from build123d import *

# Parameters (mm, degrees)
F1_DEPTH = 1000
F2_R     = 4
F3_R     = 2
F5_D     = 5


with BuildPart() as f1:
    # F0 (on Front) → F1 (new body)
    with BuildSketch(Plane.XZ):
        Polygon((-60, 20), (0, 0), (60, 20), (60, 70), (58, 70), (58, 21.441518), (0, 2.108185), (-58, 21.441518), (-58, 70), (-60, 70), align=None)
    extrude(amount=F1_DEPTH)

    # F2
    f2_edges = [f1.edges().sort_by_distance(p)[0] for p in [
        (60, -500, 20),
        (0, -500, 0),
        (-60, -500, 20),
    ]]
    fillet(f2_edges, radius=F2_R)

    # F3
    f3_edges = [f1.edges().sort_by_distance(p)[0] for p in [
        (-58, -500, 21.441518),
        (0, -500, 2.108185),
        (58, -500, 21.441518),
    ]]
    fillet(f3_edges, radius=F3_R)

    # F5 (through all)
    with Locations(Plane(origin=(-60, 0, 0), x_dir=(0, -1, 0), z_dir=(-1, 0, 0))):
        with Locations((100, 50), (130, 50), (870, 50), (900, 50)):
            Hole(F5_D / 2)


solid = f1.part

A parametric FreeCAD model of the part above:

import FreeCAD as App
import Part
import Sketcher
from FreeCAD import Vector


def edges_at(feature, points):
    """Names of the edges that pass closest to the given points."""
    edges = feature.Shape.Edges
    near = lambda p: min(range(len(edges)), key=lambda i: edges[i].distToShape(Part.Vertex(*p))[0])
    return sorted({f"Edge{near(p) + 1}" for p in points})


def add_polygon(sketch, points):
    """Adds a closed chain of lines whose ends are joined by coincident constraints."""
    first, n = sketch.GeometryCount, len(points)
    for a, b in zip(points, points[1:] + points[:1]):
        sketch.addGeometry(Part.LineSegment(App.Vector(*a, 0), App.Vector(*b, 0)), False)
    for i in range(n):
        sketch.addConstraint(Sketcher.Constraint("Coincident", first + i, 2, first + (i + 1) % n, 1))

doc = App.newDocument("Part")
body = doc.addObject("PartDesign::Body", "Body")

# Sketch on XZ plane
sketch1 = body.newObject("Sketcher::SketchObject", "Sketch")
sketch1.AttachmentSupport = (doc.getObject("XZ_Plane"), [""])
sketch1.MapMode = "FlatFace"
add_polygon(sketch1, [(-60, 20), (0, 0), (60, 20), (60, 70), (58, 70), (58, 21.4), (0, 2.1), (-58, 21.4), (-58, 70), (-60, 70)])  # lines 0-9
sketch1.addConstraint([
    Sketcher.Constraint("Vertical", 2),
    Sketcher.Constraint("Horizontal", 3),
    Sketcher.Constraint("Vertical", 4),
    Sketcher.Constraint("Vertical", 7),
    Sketcher.Constraint("Horizontal", 8),
    Sketcher.Constraint("Vertical", 9),
    Sketcher.Constraint("Coincident", 0, 2, -1, 1),
    Sketcher.Constraint("Symmetric", 4, 2, 6, 2, -2),
    Sketcher.Constraint("Symmetric", 2, 2, 8, 2, -2),
    Sketcher.Constraint("PointOnObject", 5, 2, -2),
    Sketcher.Constraint("Parallel", 1, 5),
    Sketcher.Constraint("Parallel", 0, 6),
    Sketcher.Constraint("DistanceX", 3, 2, 3, 1, 2.0),
    Sketcher.Constraint("DistanceY", 2, 1, 2, 2, 50.0),
    Sketcher.Constraint("DistanceX", -1, 1, 1, 2, 60.0),
    Sketcher.Constraint("DistanceY", -1, 1, 1, 2, 20.0),
    Sketcher.Constraint("DistanceY", 4, 2, 4, 1, 48.558482),
])
pad1 = body.newObject("PartDesign::Pad", "Pad")
pad1.Profile = sketch1
pad1.Length = 1000
doc.recompute()

fillet = body.newObject("PartDesign::Fillet", "Fillet")
fillet.Base = (pad1, edges_at(pad1, [(60, -500, 20), (0, -500, 0), (-60, -500, 20)]))
fillet.Radius = 4
doc.recompute()

fillet2 = body.newObject("PartDesign::Fillet", "Fillet001")
fillet2.Base = (fillet, edges_at(fillet, [(-58, -500, 21.442), (0, -500, 2.108), (58, -500, 21.442)]))
fillet2.Radius = 2

# Sketch on YZ plane
sketch2 = body.newObject("Sketcher::SketchObject", "Sketch001")
sketch2.AttachmentSupport = (doc.getObject("YZ_Plane"), [""])
sketch2.MapMode = "FlatFace"
sketch2.AttachmentOffset = App.Placement(Vector(0, 0, -60), App.Rotation())
sketch2.addGeometry([
    Part.Circle(Vector(-100, 50, 0), Vector(0, 0, 1), 2.5),
    Part.Circle(Vector(-130, 50, 0), Vector(0, 0, 1), 2.5),
    Part.Circle(Vector(-870, 50, 0), Vector(0, 0, 1), 2.5),
    Part.Circle(Vector(-900, 50, 0), Vector(0, 0, 1), 2.5),
], False)
sketch2.addConstraint([
    Sketcher.Constraint("Equal", 0, 1),
    Sketcher.Constraint("Equal", 1, 2),
    Sketcher.Constraint("Equal", 2, 3),
    Sketcher.Constraint("Horizontal", 0, 3, 1, 3),
    Sketcher.Constraint("Horizontal", 1, 3, 2, 3),
    Sketcher.Constraint("Horizontal", 2, 3, 3, 3),
    Sketcher.Constraint("Diameter", 0, 5.0),
    Sketcher.Constraint("DistanceX", 0, 3, -1, 1, 100.0),
    Sketcher.Constraint("DistanceY", -1, 1, 0, 3, 50.0),
    Sketcher.Constraint("DistanceX", 1, 3, -1, 1, 130.0),
    Sketcher.Constraint("DistanceX", 2, 3, -1, 1, 870.0),
    Sketcher.Constraint("DistanceX", 3, 3, -1, 1, 900.0),
])
doc.recompute()
hole = body.newObject("PartDesign::Hole", "Hole")
hole.Profile = sketch2
hole.ThreadType = "None"
hole.Diameter = 5
hole.DepthType = "ThroughAll"
hole.Reversed = True

doc.recompute()
